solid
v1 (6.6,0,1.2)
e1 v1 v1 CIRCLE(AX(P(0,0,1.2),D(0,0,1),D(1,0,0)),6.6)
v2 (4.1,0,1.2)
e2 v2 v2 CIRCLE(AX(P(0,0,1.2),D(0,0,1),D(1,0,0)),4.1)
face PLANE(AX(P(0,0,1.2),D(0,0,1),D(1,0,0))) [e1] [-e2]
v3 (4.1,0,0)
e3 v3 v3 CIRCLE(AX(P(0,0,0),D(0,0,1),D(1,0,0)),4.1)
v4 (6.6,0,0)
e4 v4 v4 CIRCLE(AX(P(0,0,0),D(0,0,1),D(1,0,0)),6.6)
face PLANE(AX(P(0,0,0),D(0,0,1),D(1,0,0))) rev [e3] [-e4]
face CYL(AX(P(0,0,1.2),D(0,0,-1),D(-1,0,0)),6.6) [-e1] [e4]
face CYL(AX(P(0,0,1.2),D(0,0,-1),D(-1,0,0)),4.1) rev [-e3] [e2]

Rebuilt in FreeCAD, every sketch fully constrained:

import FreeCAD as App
import Part
import Sketcher

doc = App.newDocument("Part")
body = doc.addObject("PartDesign::Body", "Body")

# Sketch on XY plane
sketch1 = doc.addObject("Sketcher::SketchObject", "Sketch")
body.addObject(sketch1)
sketch1.AttachmentSupport = (doc.XY_Plane, [""])
sketch1.MapMode = "FlatFace"
sketch1.addGeometry([
    Part.Circle(App.Vector(0, 0, 0), App.Vector(0, 0, 1), 6.6),
    Part.Circle(App.Vector(0, 0, 0), App.Vector(0, 0, 1), 4.1),
], False)
sketch1.addConstraint([
    Sketcher.Constraint("Coincident", 0, 3, -1, 1),
    Sketcher.Constraint("Coincident", 1, 3, -1, 1),
    Sketcher.Constraint("Diameter", 0, 13.2),
    Sketcher.Constraint("Diameter", 1, 8.2),
])
pad1 = doc.addObject("PartDesign::Pad", "Pad")
body.addObject(pad1)
pad1.Profile = sketch1
pad1.Length = 1.2

doc.recompute()
